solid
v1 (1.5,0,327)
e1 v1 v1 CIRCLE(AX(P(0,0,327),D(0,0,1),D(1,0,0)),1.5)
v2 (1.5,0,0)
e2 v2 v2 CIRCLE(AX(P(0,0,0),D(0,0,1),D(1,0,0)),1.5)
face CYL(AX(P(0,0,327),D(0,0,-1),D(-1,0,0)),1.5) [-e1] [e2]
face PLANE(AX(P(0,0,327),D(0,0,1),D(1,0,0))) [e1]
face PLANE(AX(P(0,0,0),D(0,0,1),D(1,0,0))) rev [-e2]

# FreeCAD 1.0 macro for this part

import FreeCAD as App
import Part
import Sketcher
Q = App.Units.Quantity

doc = App.newDocument("Part")
body = doc.addObject("PartDesign::Body", "Body")

sketch1 = doc.addObject("Sketcher::SketchObject", "Sketch")
body.addObject(sketch1)
sketch1.AttachmentSupport = (doc.XY_Plane, [""])
sketch1.MapMode = "FlatFace"
sketch1.addGeometry(Part.Circle(App.Vector(0, 0, 0), App.Vector(0, 0, 1), 1.5), False)
sketch1.addConstraint([
    Sketcher.Constraint("Coincident", 0, 3, -1, 1),
    Sketcher.Constraint("Diameter", 0, Q("3 mm")),
])
pad1 = doc.addObject("PartDesign::Pad", "Pad")
body.addObject(pad1)
pad1.Profile = sketch1
pad1.Length = 327

doc.recompute()
